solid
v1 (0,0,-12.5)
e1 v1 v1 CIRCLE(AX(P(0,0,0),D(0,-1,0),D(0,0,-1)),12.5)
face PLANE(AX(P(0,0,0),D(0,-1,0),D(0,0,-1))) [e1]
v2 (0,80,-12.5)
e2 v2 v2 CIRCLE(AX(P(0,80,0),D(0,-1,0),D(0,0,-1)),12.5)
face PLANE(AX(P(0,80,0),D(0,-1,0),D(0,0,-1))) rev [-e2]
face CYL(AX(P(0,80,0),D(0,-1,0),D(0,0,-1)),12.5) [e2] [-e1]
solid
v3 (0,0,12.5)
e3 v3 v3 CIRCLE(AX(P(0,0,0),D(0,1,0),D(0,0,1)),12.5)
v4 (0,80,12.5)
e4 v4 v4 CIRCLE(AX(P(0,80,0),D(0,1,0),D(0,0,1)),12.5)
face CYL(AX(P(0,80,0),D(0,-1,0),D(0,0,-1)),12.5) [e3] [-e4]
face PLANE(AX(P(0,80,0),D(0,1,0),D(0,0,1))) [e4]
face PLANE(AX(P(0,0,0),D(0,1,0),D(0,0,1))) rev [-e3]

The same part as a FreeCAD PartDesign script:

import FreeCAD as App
import Part
import Sketcher
Q = App.Units.Quantity

doc = App.newDocument("Part")
body = doc.addObject("PartDesign::Body", "Body")

# Sketch on XZ plane
sketch1 = body.newObject("Sketcher::SketchObject", "Sketch")
sketch1.AttachmentSupport = (doc.getObject("XZ_Plane"), [""])
sketch1.MapMode = "FlatFace"
sketch1.addGeometry(Part.Circle(App.Vector(0, 0, 0), App.Vector(0, 0, 1), 12), False)
sketch1.addConstraint(Sketcher.Constraint("Coincident", 0, 3, -1, 1))
sketch1.addConstraint(Sketcher.Constraint("Diameter", 0, Q("25 mm")))
pad1 = body.newObject("PartDesign::Pad", "Pad")
pad1.Profile = sketch1
pad1.Length = 80
pad1.Reversed = True
body2 = doc.addObject("PartDesign::Body", "Body001")

# Sketch on XZ plane
sketch2 = body2.newObject("Sketcher::SketchObject", "Sketch001")
sketch2.AttachmentSupport = (doc.getObject("XZ_Plane001"), [""])
sketch2.MapMode = "FlatFace"
sketch2.addGeometry(Part.Circle(App.Vector(0, 0, 0), App.Vector(0, 0, 1), 12), False)
sketch2.addConstraint(Sketcher.Constraint("Coincident", 0, 3, -1, 1))
sketch2.addConstraint(Sketcher.Constraint("Diameter", 0, Q("25 mm")))
pad2 = body2.newObject("PartDesign::Pad", "Pad001")
pad2.Profile = sketch2
pad2.Length = 80
pad2.Reversed = True

doc.recompute()
